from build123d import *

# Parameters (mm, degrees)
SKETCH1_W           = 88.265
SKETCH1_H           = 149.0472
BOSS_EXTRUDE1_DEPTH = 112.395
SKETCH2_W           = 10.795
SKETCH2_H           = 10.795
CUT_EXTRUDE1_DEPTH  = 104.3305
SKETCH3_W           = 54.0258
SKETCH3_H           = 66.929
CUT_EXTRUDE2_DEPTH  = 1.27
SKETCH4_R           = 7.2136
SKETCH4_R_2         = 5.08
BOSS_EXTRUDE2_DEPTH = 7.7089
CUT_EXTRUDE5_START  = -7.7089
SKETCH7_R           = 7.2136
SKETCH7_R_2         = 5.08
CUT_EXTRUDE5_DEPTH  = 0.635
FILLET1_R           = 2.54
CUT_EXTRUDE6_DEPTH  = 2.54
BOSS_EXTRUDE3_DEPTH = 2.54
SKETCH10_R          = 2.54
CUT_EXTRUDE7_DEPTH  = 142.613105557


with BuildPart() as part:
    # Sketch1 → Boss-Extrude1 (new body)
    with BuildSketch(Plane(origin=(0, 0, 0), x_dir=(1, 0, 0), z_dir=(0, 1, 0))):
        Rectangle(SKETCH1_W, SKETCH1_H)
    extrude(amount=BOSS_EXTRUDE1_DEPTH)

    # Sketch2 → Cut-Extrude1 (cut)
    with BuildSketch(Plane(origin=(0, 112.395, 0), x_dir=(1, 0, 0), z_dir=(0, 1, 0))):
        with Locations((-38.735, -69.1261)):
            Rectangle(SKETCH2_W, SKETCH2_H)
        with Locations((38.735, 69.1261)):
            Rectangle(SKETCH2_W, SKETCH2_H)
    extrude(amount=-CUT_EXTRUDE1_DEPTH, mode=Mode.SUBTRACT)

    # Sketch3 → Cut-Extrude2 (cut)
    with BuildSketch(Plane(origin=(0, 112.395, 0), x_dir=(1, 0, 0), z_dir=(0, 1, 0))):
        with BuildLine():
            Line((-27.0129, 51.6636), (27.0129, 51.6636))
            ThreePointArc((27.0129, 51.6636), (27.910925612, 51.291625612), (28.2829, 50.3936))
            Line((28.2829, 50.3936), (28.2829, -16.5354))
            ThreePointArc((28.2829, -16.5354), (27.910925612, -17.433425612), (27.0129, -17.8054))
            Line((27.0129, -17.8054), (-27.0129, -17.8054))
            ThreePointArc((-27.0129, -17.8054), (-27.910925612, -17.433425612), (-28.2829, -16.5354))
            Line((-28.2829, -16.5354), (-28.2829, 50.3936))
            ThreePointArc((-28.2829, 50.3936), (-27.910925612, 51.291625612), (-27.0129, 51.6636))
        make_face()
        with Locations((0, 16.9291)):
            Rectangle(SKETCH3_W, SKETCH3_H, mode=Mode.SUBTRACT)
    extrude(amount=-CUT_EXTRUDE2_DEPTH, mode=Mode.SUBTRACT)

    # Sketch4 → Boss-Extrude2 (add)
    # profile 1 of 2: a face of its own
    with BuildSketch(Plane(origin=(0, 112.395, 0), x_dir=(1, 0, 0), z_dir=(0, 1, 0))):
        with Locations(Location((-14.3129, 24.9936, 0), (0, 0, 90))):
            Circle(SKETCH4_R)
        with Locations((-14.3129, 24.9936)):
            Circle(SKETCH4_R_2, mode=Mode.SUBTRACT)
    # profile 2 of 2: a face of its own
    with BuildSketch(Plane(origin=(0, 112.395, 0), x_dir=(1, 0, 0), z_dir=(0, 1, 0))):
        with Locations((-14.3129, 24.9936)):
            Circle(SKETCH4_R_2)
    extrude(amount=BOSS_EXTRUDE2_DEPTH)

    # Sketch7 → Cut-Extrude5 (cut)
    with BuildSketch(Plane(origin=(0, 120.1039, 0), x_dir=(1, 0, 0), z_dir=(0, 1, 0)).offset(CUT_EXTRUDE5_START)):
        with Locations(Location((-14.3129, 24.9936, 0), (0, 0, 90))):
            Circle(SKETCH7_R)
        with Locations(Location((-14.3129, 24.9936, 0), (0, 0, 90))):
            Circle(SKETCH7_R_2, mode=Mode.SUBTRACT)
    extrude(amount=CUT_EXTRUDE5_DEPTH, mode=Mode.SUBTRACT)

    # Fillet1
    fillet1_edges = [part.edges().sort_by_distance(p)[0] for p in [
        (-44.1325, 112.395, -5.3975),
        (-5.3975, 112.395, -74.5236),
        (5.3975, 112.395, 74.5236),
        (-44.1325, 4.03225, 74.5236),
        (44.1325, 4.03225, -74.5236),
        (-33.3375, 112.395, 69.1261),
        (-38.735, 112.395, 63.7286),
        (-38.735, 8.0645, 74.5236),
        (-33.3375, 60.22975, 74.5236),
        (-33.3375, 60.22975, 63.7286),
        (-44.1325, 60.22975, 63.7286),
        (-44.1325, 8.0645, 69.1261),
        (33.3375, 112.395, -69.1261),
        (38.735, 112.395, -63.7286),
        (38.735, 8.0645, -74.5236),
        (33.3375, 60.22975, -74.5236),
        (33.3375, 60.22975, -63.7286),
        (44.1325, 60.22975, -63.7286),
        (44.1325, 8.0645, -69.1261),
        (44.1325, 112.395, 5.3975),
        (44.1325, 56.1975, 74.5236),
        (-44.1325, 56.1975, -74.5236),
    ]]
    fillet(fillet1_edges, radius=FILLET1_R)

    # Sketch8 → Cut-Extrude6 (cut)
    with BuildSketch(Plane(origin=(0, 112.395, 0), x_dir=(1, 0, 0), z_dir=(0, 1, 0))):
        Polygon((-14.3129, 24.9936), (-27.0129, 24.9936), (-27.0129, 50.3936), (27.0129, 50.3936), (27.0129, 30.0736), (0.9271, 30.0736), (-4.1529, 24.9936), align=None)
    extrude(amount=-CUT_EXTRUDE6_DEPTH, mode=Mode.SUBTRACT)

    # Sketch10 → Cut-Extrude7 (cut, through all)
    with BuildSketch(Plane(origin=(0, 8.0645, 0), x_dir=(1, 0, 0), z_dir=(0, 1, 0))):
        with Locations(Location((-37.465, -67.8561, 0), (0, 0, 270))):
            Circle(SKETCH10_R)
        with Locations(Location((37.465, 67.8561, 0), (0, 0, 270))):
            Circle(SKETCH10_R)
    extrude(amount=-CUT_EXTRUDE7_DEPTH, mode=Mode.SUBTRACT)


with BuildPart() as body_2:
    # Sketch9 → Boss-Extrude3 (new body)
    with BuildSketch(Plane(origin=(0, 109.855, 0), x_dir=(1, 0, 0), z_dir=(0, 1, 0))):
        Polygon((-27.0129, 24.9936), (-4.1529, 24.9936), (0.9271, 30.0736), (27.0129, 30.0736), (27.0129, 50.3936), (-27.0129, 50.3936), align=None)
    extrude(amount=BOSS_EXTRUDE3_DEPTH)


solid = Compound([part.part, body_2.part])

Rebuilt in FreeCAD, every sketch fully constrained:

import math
import FreeCAD as App
import Part
import Sketcher
Q = App.Units.Quantity


def edges_at(feature, points):
    """Names of the edges that pass closest to the given points."""
    edges = feature.Shape.Edges
    near = lambda p: min(range(len(edges)), key=lambda i: edges[i].distToShape(Part.Vertex(*p))[0])
    return sorted({f"Edge{near(p) + 1}" for p in points})


def add_polygon(sketch, points):
    """Adds a closed chain of lines whose ends are joined by coincident constraints."""
    first, n = sketch.GeometryCount, len(points)
    for a, b in zip(points, points[1:] + points[:1]):
        sketch.addGeometry(Part.LineSegment(App.Vector(*a, 0), App.Vector(*b, 0)), False)
    for i in range(n):
        sketch.addConstraint(Sketcher.Constraint("Coincident", first + i, 2, first + (i + 1) % n, 1))

doc = App.newDocument("Part")
body = doc.addObject("PartDesign::Body", "Body")

sketch1 = doc.addObject("Sketcher::SketchObject", "Sketch")
body.addObject(sketch1)
sketch1.AttachmentSupport = (doc.XZ_Plane, [""])
sketch1.MapMode = "FlatFace"
add_polygon(sketch1, [(-44, -75), (-44, 75), (44, 75), (44, -75)])
sketch1.addConstraint([
    Sketcher.Constraint("Vertical", 0),
    Sketcher.Constraint("Horizontal", 1),
    Sketcher.Constraint("Vertical", 2),
    Sketcher.Constraint("Horizontal", 3),
    Sketcher.Constraint("Symmetric", 0, 2, 2, 2, -1, 1),
    Sketcher.Constraint("DistanceX", 1, 1, 1, 2, Q("3.475 in")),
    Sketcher.Constraint("DistanceY", 0, 1, 0, 2, Q("5.868 in")),
])
pad1 = doc.addObject("PartDesign::Pad", "Pad")
body.addObject(pad1)
pad1.Profile = sketch1
pad1.Length = Q("4.425 in")
pad1.Reversed = True

sketch2 = doc.addObject("Sketcher::SketchObject", "Sketch001")
body.addObject(sketch2)
sketch2.AttachmentSupport = (doc.XZ_Plane, [""])
sketch2.MapMode = "FlatFace"
sketch2.AttachmentOffset = App.Placement(App.Vector(0, 0, -4.425 * 25.4), App.Rotation())
add_polygon(sketch2, [(-44, 64), (-44, 75), (-33, 75), (-33, 64)])
add_polygon(sketch2, [(33, -75), (33, -64), (44, -64), (44, -75)])
sketch2.addConstraint([
    Sketcher.Constraint("Vertical", 0),
    Sketcher.Constraint("Horizontal", 1),
    Sketcher.Constraint("Vertical", 2),
    Sketcher.Constraint("Horizontal", 3),
    Sketcher.Constraint("Vertical", 4),
    Sketcher.Constraint("Horizontal", 5),
    Sketcher.Constraint("Vertical", 6),
    Sketcher.Constraint("Horizontal", 7),
    Sketcher.Constraint("Symmetric", 2, 2, 4, 2, -1, 1),
    Sketcher.Constraint("Symmetric", 0, 2, 6, 2, -1, 1),
    Sketcher.Constraint("Equal", 7, 0),
    Sketcher.Constraint("DistanceX", 1, 1, 1, 2, Q("0.425 in")),
    Sketcher.Constraint("DistanceX", 3, 2, 4, 2, Q("3.05 in")),
    Sketcher.Constraint("DistanceY", -1, 1, 0, 2, Q("2.934 in")),
])
pocket1 = doc.addObject("PartDesign::Pocket", "Pocket")
body.addObject(pocket1)
pocket1.Profile = sketch2
pocket1.Length = Q("4.1075 in")
pocket1.Reversed = True

sketch3 = doc.addObject("Sketcher::SketchObject", "Sketch002")
body.addObject(sketch3)
sketch3.AttachmentSupport = (doc.XZ_Plane, [""])
sketch3.MapMode = "FlatFace"
sketch3.AttachmentOffset = App.Placement(App.Vector(0, 0, -4.425 * 25.4), App.Rotation())
sketch3.addGeometry(Part.LineSegment(App.Vector(27, -51.7, 0), App.Vector(-27, -51.7, 0)), False)
sketch3.addGeometry(Part.ArcOfCircle(Part.Circle(App.Vector(-27, -50.4, 0), App.Vector(0, 0, 1), 1.3), math.radians(180), math.radians(270)), False)
sketch3.addGeometry(Part.LineSegment(App.Vector(-28.3, -50.4, 0), App.Vector(-28.3, 16.5, 0)), False)
sketch3.addGeometry(Part.ArcOfCircle(Part.Circle(App.Vector(-27, 16.5, 0), App.Vector(0, 0, 1), 1.3), math.radians(90), math.radians(180)), False)
sketch3.addGeometry(Part.LineSegment(App.Vector(-27, 17.8, 0), App.Vector(27, 17.8, 0)), False)
sketch3.addGeometry(Part.ArcOfCircle(Part.Circle(App.Vector(27, 16.5, 0), App.Vector(0, 0, 1), 1.3), math.radians(0), math.radians(90)), False)
sketch3.addGeometry(Part.LineSegment(App.Vector(28.3, 16.5, 0), App.Vector(28.3, -50.4, 0)), False)
sketch3.addGeometry(Part.ArcOfCircle(Part.Circle(App.Vector(27, -50.4, 0), App.Vector(0, 0, 1), 1.3), math.radians(-90), math.radians(0)), False)
add_polygon(sketch3, [(-27, 16.5), (-27, -50.4), (27, -50.4), (27, 16.5)])
sketch3.addConstraint([
    Sketcher.Constraint("Tangent", 0, 2, 1, 2),
    Sketcher.Constraint("Tangent", 1, 1, 2, 1),
    Sketcher.Constraint("Tangent", 2, 2, 3, 2),
    Sketcher.Constraint("Tangent", 3, 1, 4, 1),
    Sketcher.Constraint("Tangent", 4, 2, 5, 2),
    Sketcher.Constraint("Tangent", 5, 1, 6, 1),
    Sketcher.Constraint("Tangent", 6, 2, 7, 2),
    Sketcher.Constraint("Tangent", 7, 1, 0, 1),
    Sketcher.Constraint("Horizontal", 0),
    Sketcher.Constraint("Vertical", 2),
    Sketcher.Constraint("Horizontal", 4),
    Sketcher.Constraint("Vertical", 6),
    Sketcher.Constraint("Vertical", 8),
    Sketcher.Constraint("Horizontal", 9),
    Sketcher.Constraint("Vertical", 10),
    Sketcher.Constraint("Horizontal", 11),
    Sketcher.Constraint("Coincident", 8, 2, 1, 3),
    Sketcher.Constraint("Coincident", 9, 2, 7, 3),
    Sketcher.Constraint("Coincident", 10, 2, 5, 3),
    Sketcher.Constraint("Equal", 1, 3),
    Sketcher.Constraint("Radius", 1, Q("0.05 in")),
    Sketcher.Constraint("DistanceX", 0, 2, 0, 1, Q("2.127 in")),
    Sketcher.Constraint("DistanceY", 2, 1, 2, 2, Q("2.635 in")),
    Sketcher.Constraint("DistanceY", 1, 3, -1, 1, Q("1.984 in")),
    Sketcher.Constraint("DistanceX", 1, 3, -1, 1, Q("1.0635 in")),
])
pocket2 = doc.addObject("PartDesign::Pocket", "Pocket001")
body.addObject(pocket2)
pocket2.Profile = sketch3
pocket2.Length = Q("0.05 in")
pocket2.Reversed = True

sketch4 = doc.addObject("Sketcher::SketchObject", "Sketch003")
body.addObject(sketch4)
sketch4.AttachmentSupport = (doc.XZ_Plane, [""])
sketch4.MapMode = "FlatFace"
sketch4.AttachmentOffset = App.Placement(App.Vector(0, 0, -4.425 * 25.4), App.Rotation())
sketch4.addGeometry(Part.Circle(App.Vector(-14, -25, 0), App.Vector(0, 0, 1), 7), False)
sketch4.addConstraint([
    Sketcher.Constraint("Diameter", 0, Q("0.568 in")),
    Sketcher.Constraint("DistanceY", 0, 3, -1, 1, Q("0.984 in")),
    Sketcher.Constraint("DistanceX", 0, 3, -1, 1, Q("0.5635 in")),
])
pad2 = doc.addObject("PartDesign::Pad", "Pad001")
body.addObject(pad2)
pad2.Profile = sketch4
pad2.Length = Q("0.3035 in")
pad2.Reversed = True

sketch5 = doc.addObject("Sketcher::SketchObject", "Sketch004")
body.addObject(sketch5)
sketch5.AttachmentSupport = (doc.XZ_Plane, [""])
sketch5.MapMode = "FlatFace"
sketch5.AttachmentOffset = App.Placement(App.Vector(0, 0, -4.425 * 25.4), App.Rotation())
sketch5.addGeometry([
    Part.Circle(App.Vector(-14, -25, 0), App.Vector(0, 0, 1), 7),
    Part.Circle(App.Vector(-14, -25, 0), App.Vector(0, 0, 1), 5),
], False)
sketch5.addConstraint([
    Sketcher.Constraint("Coincident", 1, 3, 0, 3),
    Sketcher.Constraint("Diameter", 1, Q("0.4 in")),
    Sketcher.Constraint("Diameter", 0, Q("0.568 in")),
    Sketcher.Constraint("DistanceY", 0, 3, -1, 1, Q("0.984 in")),
    Sketcher.Constraint("DistanceX", 0, 3, -1, 1, Q("0.5635 in")),
])
pocket3 = doc.addObject("PartDesign::Pocket", "Pocket002")
body.addObject(pocket3)
pocket3.Profile = sketch5
pocket3.Length = Q("0.025 in")
doc.recompute()

fillet = doc.addObject("PartDesign::Fillet", "Fillet")
body.addObject(fillet)
fillet.Base = (pocket3, edges_at(pocket3, [
    (-44.133, 112.395, -5.397),
    (-5.397, 112.395, -74.524),
    (5.397, 112.395, 74.524),
    (-44.133, 4.032, 74.524),
    (44.133, 4.032, -74.524),
    (-33.337, 112.395, 69.126),
    (-38.735, 112.395, 63.729),
    (-38.735, 8.065, 74.524),
    (-33.337, 60.23, 74.524),
    (-33.337, 60.23, 63.729),
    (-44.133, 60.23, 63.729),
    (-44.133, 8.065, 69.126),
    (33.337, 112.395, -69.126),
    (38.735, 112.395, -63.729),
    (38.735, 8.065, -74.524),
    (33.337, 60.23, -74.524),
    (33.337, 60.23, -63.729),
    (44.133, 60.23, -63.729),
    (44.133, 8.065, -69.126),
    (44.133, 112.395, 5.397),
    (44.133, 56.197, 74.524),
    (-44.133, 56.197, -74.524),
]))
fillet.Radius = Q("0.1 in")

sketch6 = doc.addObject("Sketcher::SketchObject", "Sketch005")
body.addObject(sketch6)
sketch6.AttachmentSupport = (doc.XZ_Plane, [""])
sketch6.MapMode = "FlatFace"
sketch6.AttachmentOffset = App.Placement(App.Vector(0, 0, -4.425 * 25.4), App.Rotation())
add_polygon(sketch6, [(-27, -25), (-4, -25), (1, -30), (27, -30), (27, -50), (-27, -50)])
sketch6.addConstraint([
    Sketcher.Constraint("Horizontal", 0),
    Sketcher.Constraint("Horizontal", 2),
    Sketcher.Constraint("Vertical", 3),
    Sketcher.Constraint("Horizontal", 4),
    Sketcher.Constraint("Vertical", 5),
    Sketcher.Constraint("DistanceY", 5, 1, 5, 2, Q("1 in")),
    Sketcher.Constraint("DistanceX", 0, 1, 0, 2, Q("0.9 in")),
    Sketcher.Constraint("DistanceY", 3, 2, 3, 1, Q("0.8 in")),
    Sketcher.Constraint("Angle", 1, Q("-45 deg")),
    Sketcher.Constraint("DistanceX", 2, 1, 2, 2, Q("1.027 in")),
    Sketcher.Constraint("DistanceY", 0, 2, -1, 1, Q("0.984 in")),
    Sketcher.Constraint("DistanceX", 0, 2, -1, 1, Q("0.1635 in")),
])
pocket4 = doc.addObject("PartDesign::Pocket", "Pocket003")
body.addObject(pocket4)
pocket4.Profile = sketch6
pocket4.Length = Q("0.1 in")
pocket4.Reversed = True

sketch7 = doc.addObject("Sketcher::SketchObject", "Sketch006")
body.addObject(sketch7)
sketch7.AttachmentSupport = (doc.XZ_Plane, [""])
sketch7.MapMode = "FlatFace"
sketch7.AttachmentOffset = App.Placement(App.Vector(0, 0, -0.3175 * 25.4), App.Rotation())
sketch7.addGeometry([
    Part.Circle(App.Vector(-37.5, 67.9, 0), App.Vector(0, 0, 1), 2.5),
    Part.Circle(App.Vector(37.5, -67.9, 0), App.Vector(0, 0, 1), 2.5),
], False)
sketch7.addConstraint([
    Sketcher.Constraint("Equal", 0, 1),
    Sketcher.Constraint("Symmetric", 0, 3, 1, 3, -1, 1),
    Sketcher.Constraint("Diameter", 0, Q("0.2 in")),
    Sketcher.Constraint("DistanceX", 0, 3, 1, 3, Q("2.95 in")),
    Sketcher.Constraint("DistanceY", 1, 3, 0, 3, Q("5.343 in")),
])
pocket5 = doc.addObject("PartDesign::Pocket", "Pocket004")
body.addObject(pocket5)
pocket5.Profile = sketch7
pocket5.Type = "ThroughAll"
pocket5.Reversed = True
body2 = doc.addObject("PartDesign::Body", "Body001")

sketch8 = doc.addObject("Sketcher::SketchObject", "Sketch007")
body2.addObject(sketch8)
sketch8.AttachmentSupport = (doc.getObject("XZ_Plane001"), [""])
sketch8.MapMode = "FlatFace"
sketch8.AttachmentOffset = App.Placement(App.Vector(0, 0, -4.325 * 25.4), App.Rotation())
add_polygon(sketch8, [(-27, -25), (-4, -25), (1, -30), (27, -30), (27, -50), (-27, -50)])
sketch8.addConstraint([
    Sketcher.Constraint("Horizontal", 0),
    Sketcher.Constraint("Horizontal", 2),
    Sketcher.Constraint("Vertical", 3),
    Sketcher.Constraint("Horizontal", 4),
    Sketcher.Constraint("Vertical", 5),
    Sketcher.Constraint("DistanceY", 5, 1, 5, 2, Q("1 in")),
    Sketcher.Constraint("DistanceX", 0, 1, 0, 2, Q("0.9 in")),
    Sketcher.Constraint("DistanceY", 3, 2, 3, 1, Q("0.8 in")),
    Sketcher.Constraint("Angle", 1, Q("-45 deg")),
    Sketcher.Constraint("DistanceX", 2, 1, 2, 2, Q("1.027 in")),
    Sketcher.Constraint("DistanceY", 0, 2, -1, 1, Q("0.984 in")),
    Sketcher.Constraint("DistanceX", 0, 2, -1, 1, Q("0.1635 in")),
])
pad3 = doc.addObject("PartDesign::Pad", "Pad002")
body2.addObject(pad3)
pad3.Profile = sketch8
pad3.Length = Q("0.1 in")
pad3.Reversed = True

doc.recompute()
